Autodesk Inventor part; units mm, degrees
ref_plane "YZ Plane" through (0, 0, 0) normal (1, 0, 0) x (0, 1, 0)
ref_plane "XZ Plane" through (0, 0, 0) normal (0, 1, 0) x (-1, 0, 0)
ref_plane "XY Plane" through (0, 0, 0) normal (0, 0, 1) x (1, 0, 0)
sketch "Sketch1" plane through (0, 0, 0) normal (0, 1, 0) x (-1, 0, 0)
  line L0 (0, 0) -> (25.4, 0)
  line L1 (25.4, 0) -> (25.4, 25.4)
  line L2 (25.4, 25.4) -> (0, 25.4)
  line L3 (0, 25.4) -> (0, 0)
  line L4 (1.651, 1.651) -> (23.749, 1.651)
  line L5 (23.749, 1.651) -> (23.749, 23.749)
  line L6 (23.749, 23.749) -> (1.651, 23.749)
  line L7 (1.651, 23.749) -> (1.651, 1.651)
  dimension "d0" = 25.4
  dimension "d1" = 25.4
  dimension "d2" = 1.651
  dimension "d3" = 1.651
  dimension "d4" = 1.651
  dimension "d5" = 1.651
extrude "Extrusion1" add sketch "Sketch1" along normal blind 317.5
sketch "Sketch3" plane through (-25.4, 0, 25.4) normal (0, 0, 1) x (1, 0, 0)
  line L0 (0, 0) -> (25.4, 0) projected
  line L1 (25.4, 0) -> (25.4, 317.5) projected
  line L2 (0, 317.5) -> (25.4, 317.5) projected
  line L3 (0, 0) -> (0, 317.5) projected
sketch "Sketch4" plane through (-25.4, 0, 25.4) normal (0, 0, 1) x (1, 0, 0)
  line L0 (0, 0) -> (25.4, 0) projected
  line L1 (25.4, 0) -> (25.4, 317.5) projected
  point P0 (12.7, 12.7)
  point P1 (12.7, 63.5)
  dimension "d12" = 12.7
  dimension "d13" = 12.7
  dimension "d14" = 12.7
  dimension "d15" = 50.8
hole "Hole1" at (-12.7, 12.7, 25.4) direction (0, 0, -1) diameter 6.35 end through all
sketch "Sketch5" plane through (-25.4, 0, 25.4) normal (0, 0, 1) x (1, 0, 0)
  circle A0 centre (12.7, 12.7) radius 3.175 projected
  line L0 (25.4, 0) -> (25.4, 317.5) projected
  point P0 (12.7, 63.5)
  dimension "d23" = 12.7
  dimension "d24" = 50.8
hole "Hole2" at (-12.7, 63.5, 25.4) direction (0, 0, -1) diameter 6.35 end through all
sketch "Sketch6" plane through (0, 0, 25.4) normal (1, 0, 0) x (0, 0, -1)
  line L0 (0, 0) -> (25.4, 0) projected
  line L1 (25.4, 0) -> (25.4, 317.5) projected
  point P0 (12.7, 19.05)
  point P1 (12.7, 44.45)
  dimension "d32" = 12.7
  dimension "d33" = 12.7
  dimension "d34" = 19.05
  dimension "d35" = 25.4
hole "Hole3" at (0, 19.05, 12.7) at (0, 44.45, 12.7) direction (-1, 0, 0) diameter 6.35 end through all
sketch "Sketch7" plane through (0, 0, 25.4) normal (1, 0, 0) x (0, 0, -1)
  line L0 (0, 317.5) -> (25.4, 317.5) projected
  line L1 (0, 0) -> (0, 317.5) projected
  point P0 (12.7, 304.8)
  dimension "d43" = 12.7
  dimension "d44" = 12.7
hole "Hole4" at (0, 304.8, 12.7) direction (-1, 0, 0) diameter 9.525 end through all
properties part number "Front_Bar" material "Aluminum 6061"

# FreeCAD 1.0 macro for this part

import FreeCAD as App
import Part
import Sketcher

V = App.Vector
Q = App.Units.Quantity


def add_polygon(sketch, points):
    """Adds a closed chain of lines whose ends are joined by coincident constraints."""
    first, n = sketch.GeometryCount, len(points)
    for a, b in zip(points, points[1:] + points[:1]):
        sketch.addGeometry(Part.LineSegment(App.Vector(*a, 0), App.Vector(*b, 0)), False)
    for i in range(n):
        sketch.addConstraint(Sketcher.Constraint("Coincident", first + i, 2, first + (i + 1) % n, 1))

doc = App.newDocument("Part")
body = doc.addObject("PartDesign::Body", "Body")

# Sketch on XZ plane
sketch1 = body.newObject("Sketcher::SketchObject", "Sketch")
sketch1.AttachmentSupport = (doc.getObject("XZ_Plane"), [""])
sketch1.MapMode = "FlatFace"
add_polygon(sketch1, [(0, 25), (0, 0), (-25, 0), (-25, 25)])  # lines 0-3
add_polygon(sketch1, [(-24, 2), (-2, 2), (-2, 24), (-24, 24)])  # lines 4-7
sketch1.addConstraint([
    Sketcher.Constraint("Vertical", 0),
    Sketcher.Constraint("Horizontal", 1),
    Sketcher.Constraint("Vertical", 2),
    Sketcher.Constraint("Horizontal", 3),
    Sketcher.Constraint("Horizontal", 4),
    Sketcher.Constraint("Vertical", 5),
    Sketcher.Constraint("Horizontal", 6),
    Sketcher.Constraint("Vertical", 7),
    Sketcher.Constraint("Coincident", 0, 2, -1, 1),
    Sketcher.Constraint("Equal", 3, 0),
    Sketcher.Constraint("Equal", 6, 5),
    Sketcher.Constraint("DistanceX", 1, 2, 1, 1, Q("1 in")),
    Sketcher.Constraint("DistanceX", 4, 2, -1, 1, Q("0.065 in")),
    Sketcher.Constraint("DistanceY", -1, 1, 4, 2, Q("0.065 in")),
    Sketcher.Constraint("DistanceY", 5, 2, 3, 2, Q("0.065 in")),
])
pad1 = body.newObject("PartDesign::Pad", "Pad")
pad1.Profile = sketch1
pad1.Length = Q("12.5 in")
pad1.Reversed = True

# Sketch on XY plane
sketch2 = body.newObject("Sketcher::SketchObject", "Sketch001")
sketch2.AttachmentSupport = (doc.getObject("XY_Plane"), [""])
sketch2.MapMode = "FlatFace"
sketch2.AttachmentOffset = App.Placement(V(0, 0, 1 * 25.4), App.Rotation())
sketch2.addGeometry(Part.Circle(V(-12.7, 12.7, 0), V(0, 0, 1), 3.2), False)
sketch2.addConstraint([
    Sketcher.Constraint("Diameter", 0, Q("0.25 in")),
    Sketcher.Constraint("DistanceX", 0, 3, -1, 1, Q("0.5 in")),
    Sketcher.Constraint("DistanceY", -1, 1, 0, 3, Q("0.5 in")),
])
doc.recompute()
hole = body.newObject("PartDesign::Hole", "Hole")
hole.Profile = sketch2
hole.ThreadType = "None"
hole.Diameter = Q("0.25 in")
hole.DepthType = "ThroughAll"

# Sketch on XY plane
sketch3 = body.newObject("Sketcher::SketchObject", "Sketch002")
sketch3.AttachmentSupport = (doc.getObject("XY_Plane"), [""])
sketch3.MapMode = "FlatFace"
sketch3.AttachmentOffset = App.Placement(V(0, 0, 1 * 25.4), App.Rotation())
sketch3.addGeometry(Part.Circle(V(-12.7, 63.5, 0), V(0, 0, 1), 3.2), False)
sketch3.addConstraint([
    Sketcher.Constraint("Diameter", 0, Q("0.25 in")),
    Sketcher.Constraint("DistanceX", 0, 3, -1, 1, Q("0.5 in")),
    Sketcher.Constraint("DistanceY", -1, 1, 0, 3, Q("2.5 in")),
])
doc.recompute()
hole2 = body.newObject("PartDesign::Hole", "Hole001")
hole2.Profile = sketch3
hole2.ThreadType = "None"
hole2.Diameter = Q("0.25 in")
hole2.DepthType = "ThroughAll"

# Sketch on YZ plane
sketch4 = body.newObject("Sketcher::SketchObject", "Sketch003")
sketch4.AttachmentSupport = (doc.getObject("YZ_Plane"), [""])
sketch4.MapMode = "FlatFace"
sketch4.addGeometry([
    Part.Circle(V(19.1, 12.7, 0), V(0, 0, 1), 3.2),
    Part.Circle(V(44.5, 12.7, 0), V(0, 0, 1), 3.2),
], False)
sketch4.addConstraint([
    Sketcher.Constraint("Equal", 0, 1),
    Sketcher.Constraint("Horizontal", 0, 3, 1, 3),
    Sketcher.Constraint("Diameter", 0, Q("0.25 in")),
    Sketcher.Constraint("DistanceX", 0, 3, 1, 3, Q("1 in")),
    Sketcher.Constraint("DistanceY", -1, 1, 0, 3, Q("0.5 in")),
    Sketcher.Constraint("DistanceX", -1, 1, 0, 3, Q("0.75 in")),
])
doc.recompute()
hole3 = body.newObject("PartDesign::Hole", "Hole002")
hole3.Profile = sketch4
hole3.ThreadType = "None"
hole3.Diameter = Q("0.25 in")
hole3.DepthType = "ThroughAll"

# Sketch on YZ plane
sketch5 = body.newObject("Sketcher::SketchObject", "Sketch004")
sketch5.AttachmentSupport = (doc.getObject("YZ_Plane"), [""])
sketch5.MapMode = "FlatFace"
sketch5.addGeometry(Part.Circle(V(304.8, 12.7, 0), V(0, 0, 1), 4.8), False)
sketch5.addConstraint([
    Sketcher.Constraint("Diameter", 0, Q("0.375 in")),
    Sketcher.Constraint("DistanceX", -1, 1, 0, 3, Q("12 in")),
    Sketcher.Constraint("DistanceY", -1, 1, 0, 3, Q("0.5 in")),
])
doc.recompute()
hole4 = body.newObject("PartDesign::Hole", "Hole003")
hole4.Profile = sketch5
hole4.ThreadType = "None"
hole4.Diameter = Q("0.375 in")
hole4.DepthType = "ThroughAll"

doc.recompute()
